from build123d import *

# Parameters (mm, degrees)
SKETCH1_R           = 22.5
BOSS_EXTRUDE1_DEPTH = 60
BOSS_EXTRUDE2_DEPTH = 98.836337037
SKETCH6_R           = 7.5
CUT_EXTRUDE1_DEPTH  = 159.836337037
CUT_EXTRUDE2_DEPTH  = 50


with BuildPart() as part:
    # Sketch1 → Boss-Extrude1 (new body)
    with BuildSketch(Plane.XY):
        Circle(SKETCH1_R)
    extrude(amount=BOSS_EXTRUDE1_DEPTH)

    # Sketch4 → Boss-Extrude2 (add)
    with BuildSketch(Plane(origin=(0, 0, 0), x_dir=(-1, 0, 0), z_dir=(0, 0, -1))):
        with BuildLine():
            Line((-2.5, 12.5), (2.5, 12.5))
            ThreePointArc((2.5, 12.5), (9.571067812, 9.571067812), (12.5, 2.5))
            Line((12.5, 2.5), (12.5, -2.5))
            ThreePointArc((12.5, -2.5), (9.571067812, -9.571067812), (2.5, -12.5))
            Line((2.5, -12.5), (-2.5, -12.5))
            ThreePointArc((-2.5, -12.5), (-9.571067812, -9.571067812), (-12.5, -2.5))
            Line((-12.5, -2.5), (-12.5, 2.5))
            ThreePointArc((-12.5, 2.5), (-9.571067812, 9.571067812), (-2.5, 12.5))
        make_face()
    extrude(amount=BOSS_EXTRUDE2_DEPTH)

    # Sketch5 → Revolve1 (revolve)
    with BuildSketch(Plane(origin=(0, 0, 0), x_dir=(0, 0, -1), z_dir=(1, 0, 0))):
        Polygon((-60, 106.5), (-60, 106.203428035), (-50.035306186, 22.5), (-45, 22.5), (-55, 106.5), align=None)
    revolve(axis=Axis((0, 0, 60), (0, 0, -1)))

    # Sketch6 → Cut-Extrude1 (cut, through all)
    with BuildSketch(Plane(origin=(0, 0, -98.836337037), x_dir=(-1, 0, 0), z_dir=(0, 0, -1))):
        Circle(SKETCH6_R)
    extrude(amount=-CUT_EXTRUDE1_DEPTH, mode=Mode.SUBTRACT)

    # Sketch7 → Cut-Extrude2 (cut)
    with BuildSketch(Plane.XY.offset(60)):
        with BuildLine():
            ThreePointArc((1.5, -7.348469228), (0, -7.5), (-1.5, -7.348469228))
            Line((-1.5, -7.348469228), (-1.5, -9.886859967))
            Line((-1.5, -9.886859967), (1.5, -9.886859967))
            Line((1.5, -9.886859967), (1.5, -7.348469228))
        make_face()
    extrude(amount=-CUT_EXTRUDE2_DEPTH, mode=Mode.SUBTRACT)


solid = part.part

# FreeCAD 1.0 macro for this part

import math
import FreeCAD as App
import Part
import Sketcher
Q = App.Units.Quantity

doc = App.newDocument("Part")
params = doc.addObject("Spreadsheet::Sheet", "Params")
for row, (alias, value) in enumerate([
    ("sketch1_diameter", "45 mm"),
    ("pad1_length", "60 mm"),
    ("sketch2_radius", "10 mm"),
    ("sketch2_width", "5 mm"),
    ("pad2_length", "98.836337 mm"),
    ("sketch3_height", "5 mm"),
    ("revolution_angle", "360 deg"),
    ("sketch4_diameter", "15 mm"),
    ("sketch5_radius", "7.5 mm"),
    ("sketch5_width", "3 mm"),
    ("pocket2_length", "50 mm"),
], start=1):
    params.set(f"A{row}", alias)
    params.set(f"B{row}", "=" + value)
    params.setAlias(f"B{row}", alias)

body = doc.addObject("PartDesign::Body", "Body")

# Sketch on XY plane
sketch1 = doc.addObject("Sketcher::SketchObject", "Sketch")
body.addObject(sketch1)
sketch1.AttachmentSupport = (doc.XY_Plane, [""])
sketch1.MapMode = "FlatFace"
sketch1.addGeometry(Part.Circle(App.Vector(0, 0, 0), App.Vector(0, 0, 1), 22), False)
sketch1.addConstraint(Sketcher.Constraint("Coincident", 0, 3, -1, 1))
sketch1.addConstraint(Sketcher.Constraint("Diameter", 0, Q("45 mm")))
sketch1.setExpression("Constraints[1]", "Params.sketch1_diameter")
pad1 = doc.addObject("PartDesign::Pad", "Pad")
body.addObject(pad1)
pad1.Profile = sketch1
pad1.setExpression("Length", "Params.pad1_length")

# Sketch on XY plane
sketch2 = doc.addObject("Sketcher::SketchObject", "Sketch001")
body.addObject(sketch2)
sketch2.AttachmentSupport = (doc.XY_Plane, [""])
sketch2.MapMode = "FlatFace"
sketch2.addGeometry(Part.LineSegment(App.Vector(-2, 12, 0), App.Vector(2, 12, 0)), False)
sketch2.addGeometry(Part.ArcOfCircle(Part.Circle(App.Vector(2, 2, 0), App.Vector(0, 0, 1), 10), math.radians(0), math.radians(90)), False)
sketch2.addGeometry(Part.LineSegment(App.Vector(12, 2, 0), App.Vector(12, -2, 0)), False)
sketch2.addGeometry(Part.ArcOfCircle(Part.Circle(App.Vector(2, -2, 0), App.Vector(0, 0, 1), 10), math.radians(-90), math.radians(0)), False)
sketch2.addGeometry(Part.LineSegment(App.Vector(2, -12, 0), App.Vector(-2, -12, 0)), False)
sketch2.addGeometry(Part.ArcOfCircle(Part.Circle(App.Vector(-2, -2, 0), App.Vector(0, 0, 1), 10), math.radians(180), math.radians(270)), False)
sketch2.addGeometry(Part.LineSegment(App.Vector(-12, -2, 0), App.Vector(-12, 2, 0)), False)
sketch2.addGeometry(Part.ArcOfCircle(Part.Circle(App.Vector(-2, 2, 0), App.Vector(0, 0, 1), 10), math.radians(90), math.radians(180)), False)
sketch2.addConstraint(Sketcher.Constraint("Tangent", 0, 2, 1, 2))
sketch2.addConstraint(Sketcher.Constraint("Tangent", 1, 1, 2, 1))
sketch2.addConstraint(Sketcher.Constraint("Tangent", 2, 2, 3, 2))
sketch2.addConstraint(Sketcher.Constraint("Tangent", 3, 1, 4, 1))
sketch2.addConstraint(Sketcher.Constraint("Tangent", 4, 2, 5, 2))
sketch2.addConstraint(Sketcher.Constraint("Tangent", 5, 1, 6, 1))
sketch2.addConstraint(Sketcher.Constraint("Tangent", 6, 2, 7, 2))
sketch2.addConstraint(Sketcher.Constraint("Tangent", 7, 1, 0, 1))
sketch2.addConstraint(Sketcher.Constraint("Horizontal", 0))
sketch2.addConstraint(Sketcher.Constraint("Vertical", 2))
sketch2.addConstraint(Sketcher.Constraint("Horizontal", 4))
sketch2.addConstraint(Sketcher.Constraint("Vertical", 6))
sketch2.addConstraint(Sketcher.Constraint("Equal", 1, 3))
sketch2.addConstraint(Sketcher.Constraint("Equal", 3, 5))
sketch2.addConstraint(Sketcher.Constraint("Equal", 5, 7))
sketch2.addConstraint(Sketcher.Constraint("Symmetric", 1, 3, 5, 3, -1, 1))
sketch2.addConstraint(Sketcher.Constraint("Equal", 4, 2))
sketch2.addConstraint(Sketcher.Constraint("Radius", 1, Q("10 mm")))
sketch2.addConstraint(Sketcher.Constraint("DistanceX", 0, 1, 0, 2, Q("5 mm")))
sketch2.setExpression("Constraints[17]", "Params.sketch2_radius")
sketch2.setExpression("Constraints[18]", "Params.sketch2_width")
pad2 = doc.addObject("PartDesign::Pad", "Pad001")
body.addObject(pad2)
pad2.Profile = sketch2
pad2.setExpression("Length", "Params.pad2_length")
pad2.Reversed = True

# Sketch on YZ plane
sketch3 = doc.addObject("Sketcher::SketchObject", "Sketch002")
body.addObject(sketch3)
sketch3.AttachmentSupport = (doc.YZ_Plane, [""])
sketch3.MapMode = "FlatFace"
sketch3.addGeometry(Part.LineSegment(App.Vector(106.5, 60, 0), App.Vector(106.2, 60, 0)), False)
sketch3.addGeometry(Part.LineSegment(App.Vector(106.2, 60, 0), App.Vector(22.5, 50.04, 0)), False)
sketch3.addGeometry(Part.LineSegment(App.Vector(22.5, 50.04, 0), App.Vector(22.5, 45, 0)), False)
sketch3.addGeometry(Part.LineSegment(App.Vector(22.5, 45, 0), App.Vector(106.5, 55, 0)), False)
sketch3.addGeometry(Part.LineSegment(App.Vector(106.5, 55, 0), App.Vector(106.5, 60, 0)), False)
sketch3.addConstraint(Sketcher.Constraint("Coincident", 0, 2, 1, 1))
sketch3.addConstraint(Sketcher.Constraint("Coincident", 1, 2, 2, 1))
sketch3.addConstraint(Sketcher.Constraint("Coincident", 2, 2, 3, 1))
sketch3.addConstraint(Sketcher.Constraint("Coincident", 3, 2, 4, 1))
sketch3.addConstraint(Sketcher.Constraint("Coincident", 4, 2, 0, 1))
sketch3.addConstraint(Sketcher.Constraint("Horizontal", 0))
sketch3.addConstraint(Sketcher.Constraint("Vertical", 2))
sketch3.addConstraint(Sketcher.Constraint("Vertical", 4))
sketch3.addConstraint(Sketcher.Constraint("Parallel", 1, 3))
sketch3.addConstraint(Sketcher.Constraint("DistanceY", 4, 1, 4, 2, Q("5 mm")))
sketch3.addConstraint(Sketcher.Constraint("DistanceY", -1, 1, 0, 2, Q("60 mm")))
sketch3.addConstraint(Sketcher.Constraint("DistanceY", -1, 1, 2, 2, Q("45 mm")))
sketch3.addConstraint(Sketcher.Constraint("DistanceX", 1, 2, 3, 2, Q("84 mm")))
sketch3.addConstraint(Sketcher.Constraint("DistanceX", -1, 1, 1, 2, Q("22.5 mm")))
sketch3.addConstraint(Sketcher.Constraint("DistanceX", 0, 2, 0, 1, Q("0.296572 mm")))
sketch3.setExpression("Constraints[9]", "Params.sketch3_height")
revolution = doc.addObject("PartDesign::Revolution", "Revolution")
body.addObject(revolution)
revolution.Profile = sketch3
revolution.ReferenceAxis = (sketch3, ["V_Axis"])
revolution.setExpression("Angle", "Params.revolution_angle")

# Sketch on XY plane
sketch4 = doc.addObject("Sketcher::SketchObject", "Sketch003")
body.addObject(sketch4)
sketch4.AttachmentSupport = (doc.XY_Plane, [""])
sketch4.MapMode = "FlatFace"
sketch4.AttachmentOffset = App.Placement(App.Vector(0, 0, -98.836337), App.Rotation())
sketch4.addGeometry(Part.Circle(App.Vector(0, 0, 0), App.Vector(0, 0, 1), 8), False)
sketch4.addConstraint(Sketcher.Constraint("Coincident", 0, 3, -1, 1))
sketch4.addConstraint(Sketcher.Constraint("Diameter", 0, Q("15 mm")))
sketch4.setExpression("Constraints[1]", "Params.sketch4_diameter")
pocket1 = doc.addObject("PartDesign::Pocket", "Pocket")
body.addObject(pocket1)
pocket1.Profile = sketch4
pocket1.Type = "ThroughAll"
pocket1.Reversed = True

# Sketch on XY plane
sketch5 = doc.addObject("Sketcher::SketchObject", "Sketch004")
body.addObject(sketch5)
sketch5.AttachmentSupport = (doc.XY_Plane, [""])
sketch5.MapMode = "FlatFace"
sketch5.AttachmentOffset = App.Placement(App.Vector(0, 0, 60), App.Rotation())
sketch5.addGeometry(Part.ArcOfCircle(Part.Circle(App.Vector(0, 0, 0), App.Vector(0, 0, 1), 7.5), math.radians(-102), math.radians(-78)), False)
sketch5.addGeometry(Part.LineSegment(App.Vector(-1.5, -7.3, 0), App.Vector(-1.5, -9.9, 0)), False)
sketch5.addGeometry(Part.LineSegment(App.Vector(-1.5, -9.9, 0), App.Vector(1.5, -9.9, 0)), False)
sketch5.addGeometry(Part.LineSegment(App.Vector(1.5, -9.9, 0), App.Vector(1.5, -7.3, 0)), False)
sketch5.addConstraint(Sketcher.Constraint("Coincident", 0, 1, 1, 1))
sketch5.addConstraint(Sketcher.Constraint("Coincident", 1, 2, 2, 1))
sketch5.addConstraint(Sketcher.Constraint("Coincident", 2, 2, 3, 1))
sketch5.addConstraint(Sketcher.Constraint("Coincident", 3, 2, 0, 2))
sketch5.addConstraint(Sketcher.Constraint("Vertical", 1))
sketch5.addConstraint(Sketcher.Constraint("Horizontal", 2))
sketch5.addConstraint(Sketcher.Constraint("Vertical", 3))
sketch5.addConstraint(Sketcher.Constraint("Coincident", 0, 3, -1, 1))
sketch5.addConstraint(Sketcher.Constraint("Horizontal", 0, 1, 3, 2))
sketch5.addConstraint(Sketcher.Constraint("Radius", 0, Q("7.5 mm")))
sketch5.addConstraint(Sketcher.Constraint("DistanceX", 2, 1, 2, 2, Q("3 mm")))
sketch5.addConstraint(Sketcher.Constraint("DistanceY", 1, 2, 1, 1, Q("2.538391 mm")))
sketch5.setExpression("Constraints[9]", "Params.sketch5_radius")
sketch5.setExpression("Constraints[10]", "Params.sketch5_width")
pocket2 = doc.addObject("PartDesign::Pocket", "Pocket001")
body.addObject(pocket2)
pocket2.Profile = sketch5
pocket2.setExpression("Length", "Params.pocket2_length")

doc.recompute()
